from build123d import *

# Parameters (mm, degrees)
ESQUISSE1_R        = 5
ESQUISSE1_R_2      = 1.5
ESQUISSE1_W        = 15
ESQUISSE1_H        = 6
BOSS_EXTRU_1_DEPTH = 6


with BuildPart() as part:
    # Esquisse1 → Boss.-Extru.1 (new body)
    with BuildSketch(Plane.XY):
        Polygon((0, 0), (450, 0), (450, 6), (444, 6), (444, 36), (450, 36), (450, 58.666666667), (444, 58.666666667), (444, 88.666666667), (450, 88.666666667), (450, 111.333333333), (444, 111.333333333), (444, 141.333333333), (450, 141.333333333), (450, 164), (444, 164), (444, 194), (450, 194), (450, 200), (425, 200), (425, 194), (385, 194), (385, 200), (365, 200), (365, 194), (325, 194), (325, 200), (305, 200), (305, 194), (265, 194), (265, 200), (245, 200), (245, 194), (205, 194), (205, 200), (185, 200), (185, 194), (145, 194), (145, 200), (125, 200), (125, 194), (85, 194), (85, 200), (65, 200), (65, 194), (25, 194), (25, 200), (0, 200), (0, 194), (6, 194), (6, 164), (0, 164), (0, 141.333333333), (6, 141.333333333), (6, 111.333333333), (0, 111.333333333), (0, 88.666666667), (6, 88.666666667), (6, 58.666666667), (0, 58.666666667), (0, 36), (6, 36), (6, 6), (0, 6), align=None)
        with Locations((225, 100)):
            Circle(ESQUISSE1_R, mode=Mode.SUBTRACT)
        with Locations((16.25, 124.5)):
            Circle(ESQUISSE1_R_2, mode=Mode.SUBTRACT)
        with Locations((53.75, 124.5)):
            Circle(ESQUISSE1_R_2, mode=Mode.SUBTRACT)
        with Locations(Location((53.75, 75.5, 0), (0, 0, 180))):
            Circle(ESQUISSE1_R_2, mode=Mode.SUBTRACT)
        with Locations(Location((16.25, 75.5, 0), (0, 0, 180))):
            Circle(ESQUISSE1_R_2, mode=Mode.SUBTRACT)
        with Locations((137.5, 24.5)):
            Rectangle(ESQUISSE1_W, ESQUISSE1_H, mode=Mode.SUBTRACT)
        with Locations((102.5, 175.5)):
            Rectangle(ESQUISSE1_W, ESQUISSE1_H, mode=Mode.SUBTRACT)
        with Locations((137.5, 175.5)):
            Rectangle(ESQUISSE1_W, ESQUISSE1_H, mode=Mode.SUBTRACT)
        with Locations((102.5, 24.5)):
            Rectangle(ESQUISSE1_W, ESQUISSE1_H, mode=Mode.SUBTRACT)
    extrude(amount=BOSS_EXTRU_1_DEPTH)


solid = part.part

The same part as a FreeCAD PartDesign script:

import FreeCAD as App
import Part
import Sketcher

V = App.Vector

doc = App.newDocument("Part")
params = doc.addObject("Spreadsheet::Sheet", "Params")
for row, (alias, value) in enumerate([
    ("sketch1_diameter", "3 mm"),
    ("sketch1_diameter2", "10 mm"),
    ("sketch1_width", "450 mm"),
    ("sketch1_width2", "6 mm"),
    ("sketch1_width3", "25 mm"),
    ("pad1_length", "6 mm"),
], start=1):
    params.set(f"A{row}", alias)
    params.set(f"B{row}", "=" + value)
    params.setAlias(f"B{row}", alias)

body = doc.addObject("PartDesign::Body", "Body")

sketch1 = body.newObject("Sketcher::SketchObject", "Sketch")
sketch1.AttachmentSupport = (doc.getObject("XY_Plane"), [""])
sketch1.MapMode = "FlatFace"
sketch1.addGeometry([
    Part.LineSegment(V(0, 0, 0), V(450, 0, 0)),
    Part.LineSegment(V(450, 0, 0), V(450, 6, 0)),
    Part.LineSegment(V(450, 6, 0), V(444, 6, 0)),
    Part.LineSegment(V(444, 6, 0), V(444, 36, 0)),
    Part.LineSegment(V(444, 36, 0), V(450, 36, 0)),
    Part.LineSegment(V(450, 36, 0), V(450, 58.7, 0)),
    Part.LineSegment(V(450, 58.7, 0), V(444, 58.7, 0)),
    Part.LineSegment(V(444, 58.7, 0), V(444, 88.7, 0)),
    Part.LineSegment(V(444, 88.7, 0), V(450, 88.7, 0)),
    Part.LineSegment(V(450, 88.7, 0), V(450, 111.3, 0)),
    Part.LineSegment(V(450, 111.3, 0), V(444, 111.3, 0)),
    Part.LineSegment(V(444, 111.3, 0), V(444, 141.3, 0)),
    Part.LineSegment(V(444, 141.3, 0), V(450, 141.3, 0)),
    Part.LineSegment(V(450, 141.3, 0), V(450, 164, 0)),
    Part.LineSegment(V(450, 164, 0), V(444, 164, 0)),
    Part.LineSegment(V(444, 164, 0), V(444, 194, 0)),
    Part.LineSegment(V(444, 194, 0), V(450, 194, 0)),
    Part.LineSegment(V(450, 194, 0), V(450, 200, 0)),
    Part.LineSegment(V(450, 200, 0), V(425, 200, 0)),
    Part.LineSegment(V(425, 200, 0), V(425, 194, 0)),
    Part.LineSegment(V(425, 194, 0), V(385, 194, 0)),
    Part.LineSegment(V(385, 194, 0), V(385, 200, 0)),
    Part.LineSegment(V(385, 200, 0), V(365, 200, 0)),
    Part.LineSegment(V(365, 200, 0), V(365, 194, 0)),
    Part.LineSegment(V(365, 194, 0), V(325, 194, 0)),
    Part.LineSegment(V(325, 194, 0), V(325, 200, 0)),
    Part.LineSegment(V(325, 200, 0), V(305, 200, 0)),
    Part.LineSegment(V(305, 200, 0), V(305, 194, 0)),
    Part.LineSegment(V(305, 194, 0), V(265, 194, 0)),
    Part.LineSegment(V(265, 194, 0), V(265, 200, 0)),
    Part.LineSegment(V(265, 200, 0), V(245, 200, 0)),
    Part.LineSegment(V(245, 200, 0), V(245, 194, 0)),
    Part.LineSegment(V(245, 194, 0), V(205, 194, 0)),
    Part.LineSegment(V(205, 194, 0), V(205, 200, 0)),
    Part.LineSegment(V(205, 200, 0), V(185, 200, 0)),
    Part.LineSegment(V(185, 200, 0), V(185, 194, 0)),
    Part.LineSegment(V(185, 194, 0), V(145, 194, 0)),
    Part.LineSegment(V(145, 194, 0), V(145, 200, 0)),
    Part.LineSegment(V(145, 200, 0), V(125, 200, 0)),
    Part.LineSegment(V(125, 200, 0), V(125, 194, 0)),
    Part.LineSegment(V(125, 194, 0), V(85, 194, 0)),
    Part.LineSegment(V(85, 194, 0), V(85, 200, 0)),
    Part.LineSegment(V(85, 200, 0), V(65, 200, 0)),
    Part.LineSegment(V(65, 200, 0), V(65, 194, 0)),
    Part.LineSegment(V(65, 194, 0), V(25, 194, 0)),
    Part.LineSegment(V(25, 194, 0), V(25, 200, 0)),
    Part.LineSegment(V(25, 200, 0), V(0, 200, 0)),
    Part.LineSegment(V(0, 200, 0), V(0, 194, 0)),
    Part.LineSegment(V(0, 194, 0), V(6, 194, 0)),
    Part.LineSegment(V(6, 194, 0), V(6, 164, 0)),
    Part.LineSegment(V(6, 164, 0), V(0, 164, 0)),
    Part.LineSegment(V(0, 164, 0), V(0, 141.3, 0)),
    Part.LineSegment(V(0, 141.3, 0), V(6, 141.3, 0)),
    Part.LineSegment(V(6, 141.3, 0), V(6, 111.3, 0)),
    Part.LineSegment(V(6, 111.3, 0), V(0, 111.3, 0)),
    Part.LineSegment(V(0, 111.3, 0), V(0, 88.7, 0)),
    Part.LineSegment(V(0, 88.7, 0), V(6, 88.7, 0)),
    Part.LineSegment(V(6, 88.7, 0), V(6, 58.7, 0)),
    Part.LineSegment(V(6, 58.7, 0), V(0, 58.7, 0)),
    Part.LineSegment(V(0, 58.7, 0), V(0, 36, 0)),
    Part.LineSegment(V(0, 36, 0), V(6, 36, 0)),
    Part.LineSegment(V(6, 36, 0), V(6, 6, 0)),
    Part.LineSegment(V(6, 6, 0), V(0, 6, 0)),
    Part.LineSegment(V(0, 6, 0), V(0, 0, 0)),
    Part.LineSegment(V(110, 21.5, 0), V(95, 21.5, 0)),
    Part.LineSegment(V(95, 21.5, 0), V(95, 27.5, 0)),
    Part.LineSegment(V(95, 27.5, 0), V(110, 27.5, 0)),
    Part.LineSegment(V(110, 27.5, 0), V(110, 21.5, 0)),
    Part.Circle(V(16.2, 75.5, 0), V(0, 0, 1), 1.5),
    Part.Circle(V(53.8, 75.5, 0), V(0, 0, 1), 1.5),
    Part.LineSegment(V(145, 21.5, 0), V(130, 21.5, 0)),
    Part.LineSegment(V(130, 21.5, 0), V(130, 27.5, 0)),
    Part.LineSegment(V(130, 27.5, 0), V(145, 27.5, 0)),
    Part.LineSegment(V(145, 27.5, 0), V(145, 21.5, 0)),
    Part.Circle(V(16.2, 124.5, 0), V(0, 0, 1), 1.5),
    Part.Circle(V(53.8, 124.5, 0), V(0, 0, 1), 1.5),
    Part.LineSegment(V(110, 172.5, 0), V(95, 172.5, 0)),
    Part.LineSegment(V(95, 172.5, 0), V(95, 178.5, 0)),
    Part.LineSegment(V(95, 178.5, 0), V(110, 178.5, 0)),
    Part.LineSegment(V(110, 178.5, 0), V(110, 172.5, 0)),
    Part.Circle(V(225, 100, 0), V(0, 0, 1), 5),
    Part.LineSegment(V(145, 172.5, 0), V(130, 172.5, 0)),
    Part.LineSegment(V(130, 172.5, 0), V(130, 178.5, 0)),
    Part.LineSegment(V(130, 178.5, 0), V(145, 178.5, 0)),
    Part.LineSegment(V(145, 178.5, 0), V(145, 172.5, 0)),
], False)
sketch1.addConstraint([
    Sketcher.Constraint("Coincident", 0, 2, 1, 1),
    Sketcher.Constraint("Coincident", 1, 2, 2, 1),
    Sketcher.Constraint("Coincident", 2, 2, 3, 1),
    Sketcher.Constraint("Coincident", 3, 2, 4, 1),
    Sketcher.Constraint("Coincident", 4, 2, 5, 1),
    Sketcher.Constraint("Coincident", 5, 2, 6, 1),
    Sketcher.Constraint("Coincident", 6, 2, 7, 1),
    Sketcher.Constraint("Coincident", 7, 2, 8, 1),
    Sketcher.Constraint("Coincident", 8, 2, 9, 1),
    Sketcher.Constraint("Coincident", 9, 2, 10, 1),
    Sketcher.Constraint("Coincident", 10, 2, 11, 1),
    Sketcher.Constraint("Coincident", 11, 2, 12, 1),
    Sketcher.Constraint("Coincident", 12, 2, 13, 1),
    Sketcher.Constraint("Coincident", 13, 2, 14, 1),
    Sketcher.Constraint("Coincident", 14, 2, 15, 1),
    Sketcher.Constraint("Coincident", 15, 2, 16, 1),
    Sketcher.Constraint("Coincident", 16, 2, 17, 1),
    Sketcher.Constraint("Coincident", 17, 2, 18, 1),
    Sketcher.Constraint("Coincident", 18, 2, 19, 1),
    Sketcher.Constraint("Coincident", 19, 2, 20, 1),
    Sketcher.Constraint("Coincident", 20, 2, 21, 1),
    Sketcher.Constraint("Coincident", 21, 2, 22, 1),
    Sketcher.Constraint("Coincident", 22, 2, 23, 1),
    Sketcher.Constraint("Coincident", 23, 2, 24, 1),
    Sketcher.Constraint("Coincident", 24, 2, 25, 1),
    Sketcher.Constraint("Coincident", 25, 2, 26, 1),
    Sketcher.Constraint("Coincident", 26, 2, 27, 1),
    Sketcher.Constraint("Coincident", 27, 2, 28, 1),
    Sketcher.Constraint("Coincident", 28, 2, 29, 1),
    Sketcher.Constraint("Coincident", 29, 2, 30, 1),
    Sketcher.Constraint("Coincident", 30, 2, 31, 1),
    Sketcher.Constraint("Coincident", 31, 2, 32, 1),
    Sketcher.Constraint("Coincident", 32, 2, 33, 1),
    Sketcher.Constraint("Coincident", 33, 2, 34, 1),
    Sketcher.Constraint("Coincident", 34, 2, 35, 1),
    Sketcher.Constraint("Coincident", 35, 2, 36, 1),
    Sketcher.Constraint("Coincident", 36, 2, 37, 1),
    Sketcher.Constraint("Coincident", 37, 2, 38, 1),
    Sketcher.Constraint("Coincident", 38, 2, 39, 1),
    Sketcher.Constraint("Coincident", 39, 2, 40, 1),
    Sketcher.Constraint("Coincident", 40, 2, 41, 1),
    Sketcher.Constraint("Coincident", 41, 2, 42, 1),
    Sketcher.Constraint("Coincident", 42, 2, 43, 1),
    Sketcher.Constraint("Coincident", 43, 2, 44, 1),
    Sketcher.Constraint("Coincident", 44, 2, 45, 1),
    Sketcher.Constraint("Coincident", 45, 2, 46, 1),
    Sketcher.Constraint("Coincident", 46, 2, 47, 1),
    Sketcher.Constraint("Coincident", 47, 2, 48, 1),
    Sketcher.Constraint("Coincident", 48, 2, 49, 1),
    Sketcher.Constraint("Coincident", 49, 2, 50, 1),
    Sketcher.Constraint("Coincident", 50, 2, 51, 1),
    Sketcher.Constraint("Coincident", 51, 2, 52, 1),
    Sketcher.Constraint("Coincident", 52, 2, 53, 1),
    Sketcher.Constraint("Coincident", 53, 2, 54, 1),
    Sketcher.Constraint("Coincident", 54, 2, 55, 1),
    Sketcher.Constraint("Coincident", 55, 2, 56, 1),
    Sketcher.Constraint("Coincident", 56, 2, 57, 1),
    Sketcher.Constraint("Coincident", 57, 2, 58, 1),
    Sketcher.Constraint("Coincident", 58, 2, 59, 1),
    Sketcher.Constraint("Coincident", 59, 2, 60, 1),
    Sketcher.Constraint("Coincident", 60, 2, 61, 1),
    Sketcher.Constraint("Coincident", 61, 2, 62, 1),
    Sketcher.Constraint("Coincident", 62, 2, 63, 1),
    Sketcher.Constraint("Coincident", 63, 2, 0, 1),
    Sketcher.Constraint("Coincident", 64, 2, 65, 1),
    Sketcher.Constraint("Coincident", 65, 2, 66, 1),
    Sketcher.Constraint("Coincident", 66, 2, 67, 1),
    Sketcher.Constraint("Coincident", 67, 2, 64, 1),
    Sketcher.Constraint("Coincident", 70, 2, 71, 1),
    Sketcher.Constraint("Coincident", 71, 2, 72, 1),
    Sketcher.Constraint("Coincident", 72, 2, 73, 1),
    Sketcher.Constraint("Coincident", 73, 2, 70, 1),
    Sketcher.Constraint("Coincident", 76, 2, 77, 1),
    Sketcher.Constraint("Coincident", 77, 2, 78, 1),
    Sketcher.Constraint("Coincident", 78, 2, 79, 1),
    Sketcher.Constraint("Coincident", 79, 2, 76, 1),
    Sketcher.Constraint("Coincident", 81, 2, 82, 1),
    Sketcher.Constraint("Coincident", 82, 2, 83, 1),
    Sketcher.Constraint("Coincident", 83, 2, 84, 1),
    Sketcher.Constraint("Coincident", 84, 2, 81, 1),
    Sketcher.Constraint("Horizontal", 0),
    Sketcher.Constraint("Vertical", 1),
    Sketcher.Constraint("Horizontal", 2),
    Sketcher.Constraint("Vertical", 3),
    Sketcher.Constraint("Horizontal", 4),
    Sketcher.Constraint("Vertical", 5),
    Sketcher.Constraint("Horizontal", 6),
    Sketcher.Constraint("Vertical", 7),
    Sketcher.Constraint("Horizontal", 8),
    Sketcher.Constraint("Vertical", 9),
    Sketcher.Constraint("Horizontal", 10),
    Sketcher.Constraint("Vertical", 11),
    Sketcher.Constraint("Horizontal", 12),
    Sketcher.Constraint("Vertical", 13),
    Sketcher.Constraint("Horizontal", 14),
    Sketcher.Constraint("Vertical", 15),
    Sketcher.Constraint("Horizontal", 16),
    Sketcher.Constraint("Vertical", 17),
    Sketcher.Constraint("Horizontal", 18),
    Sketcher.Constraint("Vertical", 19),
    Sketcher.Constraint("Horizontal", 20),
    Sketcher.Constraint("Vertical", 21),
    Sketcher.Constraint("Horizontal", 22),
    Sketcher.Constraint("Vertical", 23),
    Sketcher.Constraint("Horizontal", 24),
    Sketcher.Constraint("Vertical", 25),
    Sketcher.Constraint("Horizontal", 26),
    Sketcher.Constraint("Vertical", 27),
    Sketcher.Constraint("Horizontal", 28),
    Sketcher.Constraint("Vertical", 29),
    Sketcher.Constraint("Horizontal", 30),
    Sketcher.Constraint("Vertical", 31),
    Sketcher.Constraint("Horizontal", 32),
    Sketcher.Constraint("Vertical", 33),
    Sketcher.Constraint("Horizontal", 34),
    Sketcher.Constraint("Vertical", 35),
    Sketcher.Constraint("Horizontal", 36),
    Sketcher.Constraint("Vertical", 37),
    Sketcher.Constraint("Horizontal", 38),
    Sketcher.Constraint("Vertical", 39),
    Sketcher.Constraint("Horizontal", 40),
    Sketcher.Constraint("Vertical", 41),
    Sketcher.Constraint("Horizontal", 42),
    Sketcher.Constraint("Vertical", 43),
    Sketcher.Constraint("Horizontal", 44),
    Sketcher.Constraint("Vertical", 45),
    Sketcher.Constraint("Horizontal", 46),
    Sketcher.Constraint("Vertical", 47),
    Sketcher.Constraint("Horizontal", 48),
    Sketcher.Constraint("Vertical", 49),
    Sketcher.Constraint("Horizontal", 50),
    Sketcher.Constraint("Vertical", 51),
    Sketcher.Constraint("Horizontal", 52),
    Sketcher.Constraint("Vertical", 53),
    Sketcher.Constraint("Horizontal", 54),
    Sketcher.Constraint("Vertical", 55),
    Sketcher.Constraint("Horizontal", 56),
    Sketcher.Constraint("Vertical", 57),
    Sketcher.Constraint("Horizontal", 58),
    Sketcher.Constraint("Vertical", 59),
    Sketcher.Constraint("Horizontal", 60),
    Sketcher.Constraint("Vertical", 61),
    Sketcher.Constraint("Horizontal", 62),
    Sketcher.Constraint("Vertical", 63),
    Sketcher.Constraint("Horizontal", 64),
    Sketcher.Constraint("Vertical", 65),
    Sketcher.Constraint("Horizontal", 66),
    Sketcher.Constraint("Vertical", 67),
    Sketcher.Constraint("Horizontal", 70),
    Sketcher.Constraint("Vertical", 71),
    Sketcher.Constraint("Horizontal", 72),
    Sketcher.Constraint("Vertical", 73),
    Sketcher.Constraint("Horizontal", 76),
    Sketcher.Constraint("Vertical", 77),
    Sketcher.Constraint("Horizontal", 78),
    Sketcher.Constraint("Vertical", 79),
    Sketcher.Constraint("Horizontal", 81),
    Sketcher.Constraint("Vertical", 82),
    Sketcher.Constraint("Horizontal", 83),
    Sketcher.Constraint("Vertical", 84),
    Sketcher.Constraint("Coincident", 63, 2, -1, 1),
    Sketcher.Constraint("Equal", 68, 69),
    Sketcher.Constraint("Equal", 69, 74),
    Sketcher.Constraint("Equal", 74, 75),
    Sketcher.Constraint("PointOnObject", 46, 2, -2),
    Sketcher.Constraint("PointOnObject", 50, 2, -2),
    Sketcher.Constraint("PointOnObject", 54, 2, -2),
    Sketcher.Constraint("PointOnObject", 58, 2, -2),
    Sketcher.Constraint("Horizontal", 68, 3, 69, 3),
    Sketcher.Constraint("Horizontal", 74, 3, 75, 3),
    Sketcher.Constraint("Horizontal", 16, 2, 19, 2),
    Sketcher.Constraint("Horizontal", 18, 2, 21, 2),
    Sketcher.Constraint("Horizontal", 20, 2, 23, 2),
    Sketcher.Constraint("Horizontal", 22, 2, 25, 2),
    Sketcher.Constraint("Horizontal", 24, 2, 27, 2),
    Sketcher.Constraint("Horizontal", 26, 2, 29, 2),
    Sketcher.Constraint("Horizontal", 28, 2, 31, 2),
    Sketcher.Constraint("Horizontal", 30, 2, 33, 2),
    Sketcher.Constraint("Horizontal", 32, 2, 35, 2),
    Sketcher.Constraint("Horizontal", 34, 2, 37, 2),
    Sketcher.Constraint("Horizontal", 36, 2, 39, 2),
    Sketcher.Constraint("Horizontal", 38, 2, 41, 2),
    Sketcher.Constraint("Horizontal", 40, 2, 43, 2),
    Sketcher.Constraint("Horizontal", 42, 2, 45, 2),
    Sketcher.Constraint("Horizontal", 44, 2, 47, 2),
    Sketcher.Constraint("Horizontal", 14, 2, 49, 2),
    Sketcher.Constraint("Horizontal", 12, 2, 51, 2),
    Sketcher.Constraint("Horizontal", 10, 2, 53, 2),
    Sketcher.Constraint("Horizontal", 8, 2, 55, 2),
    Sketcher.Constraint("Horizontal", 6, 2, 57, 2),
    Sketcher.Constraint("Horizontal", 4, 2, 59, 2),
    Sketcher.Constraint("Horizontal", 2, 2, 61, 2),
    Sketcher.Constraint("Horizontal", 67, 2, 70, 2),
    Sketcher.Constraint("Horizontal", 66, 2, 71, 2),
    Sketcher.Constraint("Horizontal", 79, 2, 81, 2),
    Sketcher.Constraint("Horizontal", 78, 2, 82, 2),
    Sketcher.Constraint("Vertical", 68, 3, 74, 3),
    Sketcher.Constraint("Vertical", 69, 3, 75, 3),
    Sketcher.Constraint("Vertical", 1, 2, 4, 2),
    Sketcher.Constraint("Vertical", 3, 2, 6, 2),
    Sketcher.Constraint("Vertical", 5, 2, 8, 2),
    Sketcher.Constraint("Vertical", 7, 2, 10, 2),
    Sketcher.Constraint("Vertical", 9, 2, 12, 2),
    Sketcher.Constraint("Vertical", 11, 2, 14, 2),
    Sketcher.Constraint("Vertical", 13, 2, 16, 2),
    Sketcher.Constraint("Vertical", 49, 2, 52, 2),
    Sketcher.Constraint("Vertical", 53, 2, 56, 2),
    Sketcher.Constraint("Vertical", 57, 2, 60, 2),
    Sketcher.Constraint("Vertical", 37, 2, 72, 2),
    Sketcher.Constraint("Vertical", 65, 2, 76, 2),
    Sketcher.Constraint("Vertical", 67, 2, 78, 2),
    Sketcher.Constraint("Vertical", 71, 2, 81, 2),
    Sketcher.Constraint("Vertical", 73, 2, 83, 2),
    Sketcher.Constraint("Equal", 20, 24),
    Sketcher.Constraint("Equal", 22, 26),
    Sketcher.Constraint("Equal", 24, 28),
    Sketcher.Constraint("Equal", 26, 30),
    Sketcher.Constraint("Equal", 28, 32),
    Sketcher.Constraint("Equal", 30, 34),
    Sketcher.Constraint("Equal", 32, 36),
    Sketcher.Constraint("Equal", 34, 38),
    Sketcher.Constraint("Equal", 36, 40),
    Sketcher.Constraint("Equal", 38, 42),
    Sketcher.Constraint("Equal", 40, 44),
    Sketcher.Constraint("Equal", 18, 46),
    Sketcher.Constraint("Equal", 16, 48),
    Sketcher.Constraint("Equal", 66, 70),
    Sketcher.Constraint("Equal", 62, 1),
    Sketcher.Constraint("Equal", 3, 7),
    Sketcher.Constraint("Equal", 5, 9),
    Sketcher.Constraint("Equal", 7, 11),
    Sketcher.Constraint("Equal", 9, 13),
    Sketcher.Constraint("Equal", 11, 15),
    Sketcher.Constraint("Equal", 1, 17),
    Sketcher.Constraint("Equal", 63, 65),
    Sketcher.Constraint("Equal", 73, 77),
    Sketcher.Constraint("Diameter", 68, 3.0),
    Sketcher.Constraint("Diameter", 80, 10.0),
    Sketcher.Constraint("DistanceX", 0, 1, 0, 2, 450.0),
    Sketcher.Constraint("DistanceX", 2, 2, 2, 1, 6.0),
    Sketcher.Constraint("DistanceX", 18, 2, 18, 1, 25.0),
    Sketcher.Constraint("DistanceX", 20, 2, 20, 1, 40.0),
    Sketcher.Constraint("DistanceX", 64, 2, 64, 1, 15.0),
    Sketcher.Constraint("DistanceY", 3, 1, 3, 2, 30.0),
    Sketcher.Constraint("DistanceX", -1, 1, 80, 3, 225.0),
    Sketcher.Constraint("DistanceY", -1, 1, 80, 3, 100.0),
    Sketcher.Constraint("DistanceY", -1, 1, 13, 2, 164.0),
    Sketcher.Constraint("DistanceX", -1, 1, 64, 2, 95.0),
    Sketcher.Constraint("DistanceY", -1, 1, 68, 3, 75.5),
    Sketcher.Constraint("DistanceY", -1, 1, 74, 3, 124.5),
    Sketcher.Constraint("DistanceY", -1, 1, 64, 2, 21.5),
    Sketcher.Constraint("DistanceY", -1, 1, 76, 2, 172.5),
    Sketcher.Constraint("DistanceX", -1, 1, 68, 3, 16.25),
    Sketcher.Constraint("DistanceX", -1, 1, 69, 3, 53.75),
])
sketch1.setExpression("Constraints[236]", "Params.sketch1_diameter")
sketch1.setExpression("Constraints[237]", "Params.sketch1_diameter2")
sketch1.setExpression("Constraints[238]", "Params.sketch1_width")
sketch1.setExpression("Constraints[239]", "Params.sketch1_width2")
sketch1.setExpression("Constraints[240]", "Params.sketch1_width3")
pad1 = body.newObject("PartDesign::Pad", "Pad")
pad1.Profile = sketch1
pad1.setExpression("Length", "Params.pad1_length")

doc.recompute()
